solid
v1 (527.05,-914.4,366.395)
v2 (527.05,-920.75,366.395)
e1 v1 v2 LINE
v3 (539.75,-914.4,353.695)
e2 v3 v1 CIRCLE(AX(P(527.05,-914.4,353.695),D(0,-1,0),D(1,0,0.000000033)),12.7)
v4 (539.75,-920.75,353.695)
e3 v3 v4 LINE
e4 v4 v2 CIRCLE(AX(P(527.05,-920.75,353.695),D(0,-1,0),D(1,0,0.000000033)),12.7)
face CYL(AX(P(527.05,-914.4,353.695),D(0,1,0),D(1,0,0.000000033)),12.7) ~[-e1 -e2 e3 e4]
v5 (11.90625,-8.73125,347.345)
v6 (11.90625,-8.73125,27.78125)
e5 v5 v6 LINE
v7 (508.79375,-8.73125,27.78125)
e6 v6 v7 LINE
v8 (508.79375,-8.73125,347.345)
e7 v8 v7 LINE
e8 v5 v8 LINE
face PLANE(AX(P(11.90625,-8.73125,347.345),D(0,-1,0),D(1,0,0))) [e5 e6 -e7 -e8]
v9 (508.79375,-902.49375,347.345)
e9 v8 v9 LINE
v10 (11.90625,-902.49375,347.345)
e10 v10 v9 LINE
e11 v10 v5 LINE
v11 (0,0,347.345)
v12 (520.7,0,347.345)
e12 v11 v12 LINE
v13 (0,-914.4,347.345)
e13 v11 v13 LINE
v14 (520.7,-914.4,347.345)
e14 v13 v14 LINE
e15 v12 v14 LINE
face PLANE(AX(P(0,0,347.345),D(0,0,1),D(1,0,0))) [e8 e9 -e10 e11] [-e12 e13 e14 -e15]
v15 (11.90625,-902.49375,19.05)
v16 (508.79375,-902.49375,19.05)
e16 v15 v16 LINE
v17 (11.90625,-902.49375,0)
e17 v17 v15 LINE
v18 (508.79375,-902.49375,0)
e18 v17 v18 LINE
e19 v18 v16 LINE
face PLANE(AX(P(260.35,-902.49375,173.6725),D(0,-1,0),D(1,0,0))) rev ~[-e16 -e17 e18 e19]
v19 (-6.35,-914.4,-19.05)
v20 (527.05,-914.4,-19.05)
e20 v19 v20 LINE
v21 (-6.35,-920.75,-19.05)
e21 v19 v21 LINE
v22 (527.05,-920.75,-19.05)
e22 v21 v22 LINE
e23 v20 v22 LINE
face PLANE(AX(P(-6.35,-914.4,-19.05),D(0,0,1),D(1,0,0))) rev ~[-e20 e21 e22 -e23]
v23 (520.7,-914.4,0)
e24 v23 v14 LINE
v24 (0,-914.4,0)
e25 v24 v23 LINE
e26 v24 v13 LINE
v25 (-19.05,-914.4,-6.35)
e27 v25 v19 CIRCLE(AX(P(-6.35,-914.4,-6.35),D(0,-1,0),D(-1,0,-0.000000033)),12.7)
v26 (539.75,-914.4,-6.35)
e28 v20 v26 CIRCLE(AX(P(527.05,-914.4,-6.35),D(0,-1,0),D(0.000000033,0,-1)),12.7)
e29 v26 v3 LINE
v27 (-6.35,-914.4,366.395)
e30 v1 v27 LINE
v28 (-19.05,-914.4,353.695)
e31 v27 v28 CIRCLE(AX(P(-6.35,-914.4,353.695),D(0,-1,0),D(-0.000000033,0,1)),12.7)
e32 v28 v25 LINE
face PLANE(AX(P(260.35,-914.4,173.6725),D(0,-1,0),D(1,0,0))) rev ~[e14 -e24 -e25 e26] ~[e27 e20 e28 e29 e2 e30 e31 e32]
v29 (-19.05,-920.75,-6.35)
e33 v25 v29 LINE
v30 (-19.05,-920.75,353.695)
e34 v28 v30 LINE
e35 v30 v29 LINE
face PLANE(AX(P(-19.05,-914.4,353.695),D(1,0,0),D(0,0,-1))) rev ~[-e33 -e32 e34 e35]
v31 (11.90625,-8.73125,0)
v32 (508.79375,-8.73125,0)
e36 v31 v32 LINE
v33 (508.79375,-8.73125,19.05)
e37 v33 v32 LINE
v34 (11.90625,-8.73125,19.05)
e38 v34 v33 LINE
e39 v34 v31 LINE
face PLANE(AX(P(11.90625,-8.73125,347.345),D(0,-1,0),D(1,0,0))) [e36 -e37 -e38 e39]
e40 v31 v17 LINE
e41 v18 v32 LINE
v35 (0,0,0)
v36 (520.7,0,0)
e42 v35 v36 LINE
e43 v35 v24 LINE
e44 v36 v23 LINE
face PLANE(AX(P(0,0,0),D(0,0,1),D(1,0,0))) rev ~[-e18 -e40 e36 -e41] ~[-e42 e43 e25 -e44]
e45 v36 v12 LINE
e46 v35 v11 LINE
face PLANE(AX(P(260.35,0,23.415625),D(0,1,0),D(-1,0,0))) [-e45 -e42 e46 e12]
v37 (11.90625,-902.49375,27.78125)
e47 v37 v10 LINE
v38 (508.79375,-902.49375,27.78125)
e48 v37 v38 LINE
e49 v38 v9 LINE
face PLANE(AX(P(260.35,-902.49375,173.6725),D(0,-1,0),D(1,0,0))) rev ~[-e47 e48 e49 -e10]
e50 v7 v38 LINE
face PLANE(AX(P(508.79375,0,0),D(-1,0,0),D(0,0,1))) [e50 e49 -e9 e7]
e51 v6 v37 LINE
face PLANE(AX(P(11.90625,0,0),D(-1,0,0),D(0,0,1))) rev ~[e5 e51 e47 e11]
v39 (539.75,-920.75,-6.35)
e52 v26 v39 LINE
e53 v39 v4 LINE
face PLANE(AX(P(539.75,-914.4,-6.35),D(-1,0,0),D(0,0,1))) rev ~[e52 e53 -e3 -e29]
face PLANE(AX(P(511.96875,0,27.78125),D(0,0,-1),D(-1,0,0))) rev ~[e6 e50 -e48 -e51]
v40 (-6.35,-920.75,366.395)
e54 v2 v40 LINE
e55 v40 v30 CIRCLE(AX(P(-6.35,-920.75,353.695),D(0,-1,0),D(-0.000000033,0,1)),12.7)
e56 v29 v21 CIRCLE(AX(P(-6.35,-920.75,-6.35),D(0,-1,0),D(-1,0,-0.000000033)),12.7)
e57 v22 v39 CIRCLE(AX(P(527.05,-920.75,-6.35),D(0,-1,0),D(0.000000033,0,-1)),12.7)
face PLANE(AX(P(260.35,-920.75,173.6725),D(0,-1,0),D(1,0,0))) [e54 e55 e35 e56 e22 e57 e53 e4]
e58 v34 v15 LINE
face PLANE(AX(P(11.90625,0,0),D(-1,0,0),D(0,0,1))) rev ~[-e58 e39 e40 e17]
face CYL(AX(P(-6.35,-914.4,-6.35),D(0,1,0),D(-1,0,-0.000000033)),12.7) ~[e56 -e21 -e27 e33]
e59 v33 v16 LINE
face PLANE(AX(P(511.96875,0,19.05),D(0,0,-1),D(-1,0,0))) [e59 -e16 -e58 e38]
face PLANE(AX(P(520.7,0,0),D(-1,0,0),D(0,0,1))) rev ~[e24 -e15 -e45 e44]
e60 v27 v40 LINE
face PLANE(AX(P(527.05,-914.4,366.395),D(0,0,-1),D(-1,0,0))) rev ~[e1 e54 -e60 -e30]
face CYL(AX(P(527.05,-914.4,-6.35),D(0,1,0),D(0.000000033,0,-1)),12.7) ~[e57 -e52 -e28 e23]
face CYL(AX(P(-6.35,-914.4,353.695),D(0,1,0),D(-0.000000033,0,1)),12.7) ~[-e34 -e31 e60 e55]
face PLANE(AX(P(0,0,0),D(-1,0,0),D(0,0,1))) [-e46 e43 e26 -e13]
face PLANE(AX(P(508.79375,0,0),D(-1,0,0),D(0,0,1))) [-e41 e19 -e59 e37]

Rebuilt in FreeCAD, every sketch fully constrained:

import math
import FreeCAD as App
import Part
import Sketcher

V = App.Vector
Q = App.Units.Quantity


def faces_at(feature, points):
    """Names of the faces that lie closest to the given points."""
    faces = feature.Shape.Faces
    near = lambda p: min(range(len(faces)), key=lambda i: faces[i].distToShape(Part.Vertex(*p))[0])
    return sorted({f"Face{near(p) + 1}" for p in points})


def add_polygon(sketch, points):
    """Adds a closed chain of lines whose ends are joined by coincident constraints."""
    first, n = sketch.GeometryCount, len(points)
    for a, b in zip(points, points[1:] + points[:1]):
        sketch.addGeometry(Part.LineSegment(App.Vector(*a, 0), App.Vector(*b, 0)), False)
    for i in range(n):
        sketch.addConstraint(Sketcher.Constraint("Coincident", first + i, 2, first + (i + 1) % n, 1))

doc = App.newDocument("Part")
body = doc.addObject("PartDesign::Body", "Body")

# Sketch on XZ plane
sketch1 = body.newObject("Sketcher::SketchObject", "Sketch")
sketch1.AttachmentSupport = (doc.getObject("XZ_Plane"), [""])
sketch1.MapMode = "FlatFace"
add_polygon(sketch1, [(0, 347), (0, 0), (521, 0), (521, 347)])  # lines 0-3
sketch1.addConstraint([
    Sketcher.Constraint("Vertical", 0),
    Sketcher.Constraint("Horizontal", 1),
    Sketcher.Constraint("Vertical", 2),
    Sketcher.Constraint("Horizontal", 3),
    Sketcher.Constraint("Coincident", 0, 2, -1, 1),
    Sketcher.Constraint("DistanceX", 1, 1, 1, 2, Q("20.5 in")),
    Sketcher.Constraint("DistanceY", 0, 2, 0, 1, Q("13.675 in")),
])
pad1 = body.newObject("PartDesign::Pad", "Pad")
pad1.Profile = sketch1
pad1.Length = Q("36 in")
doc.recompute()

thickness = body.newObject("PartDesign::Thickness", "Thickness")
thickness.Base = (pad1, faces_at(pad1, [(260.35, -457.2, 347.345), (260.35, -457.2, 0)]))
thickness.Value = Q("0.46875 in")
thickness.Reversed = True
thickness.Join = "Arc"

# Sketch on XZ plane
sketch2 = body.newObject("Sketcher::SketchObject", "Sketch001")
sketch2.AttachmentSupport = (doc.getObject("XZ_Plane"), [""])
sketch2.MapMode = "FlatFace"
sketch2.AttachmentOffset = App.Placement(V(0, 0, 36 * 25.4), App.Rotation())
sketch2.addGeometry([
    Part.ArcOfCircle(Part.Circle(V(-6, -6, 0), V(0, 0, 1), 13), math.radians(-180), math.radians(-90)),  # 0
    Part.LineSegment(V(-6, -19, 0), V(527, -19, 0)),  # 1
    Part.ArcOfCircle(Part.Circle(V(527, -6, 0), V(0, 0, 1), 13), math.radians(-90), math.radians(0)),  # 2
    Part.LineSegment(V(540, -6, 0), V(540, 354, 0)),  # 3
    Part.ArcOfCircle(Part.Circle(V(527, 354, 0), V(0, 0, 1), 13), math.radians(0), math.radians(90)),  # 4
    Part.LineSegment(V(527, 366, 0), V(-6, 366, 0)),  # 5
    Part.ArcOfCircle(Part.Circle(V(-6, 354, 0), V(0, 0, 1), 13), math.radians(90), math.radians(180)),  # 6
    Part.LineSegment(V(-19, 354, 0), V(-19, -6, 0)),  # 7
], False)
sketch2.addConstraint([
    Sketcher.Constraint("Tangent", 0, 2, 1, 1),
    Sketcher.Constraint("Tangent", 1, 2, 2, 1),
    Sketcher.Constraint("Tangent", 2, 2, 3, 1),
    Sketcher.Constraint("Tangent", 3, 2, 4, 1),
    Sketcher.Constraint("Tangent", 4, 2, 5, 1),
    Sketcher.Constraint("Tangent", 5, 2, 6, 1),
    Sketcher.Constraint("Tangent", 6, 2, 7, 1),
    Sketcher.Constraint("Tangent", 7, 2, 0, 1),
    Sketcher.Constraint("Horizontal", 1),
    Sketcher.Constraint("Vertical", 3),
    Sketcher.Constraint("Horizontal", 5),
    Sketcher.Constraint("Vertical", 7),
    Sketcher.Constraint("Equal", 0, 2),
    Sketcher.Constraint("Equal", 2, 4),
    Sketcher.Constraint("Equal", 4, 6),
    Sketcher.Constraint("Radius", 0, Q("0.5 in")),
    Sketcher.Constraint("DistanceX", 1, 1, 1, 2, Q("21 in")),
    Sketcher.Constraint("DistanceY", 3, 1, 3, 2, Q("14.175 in")),
    Sketcher.Constraint("DistanceX", 0, 3, -1, 1, Q("0.25 in")),
    Sketcher.Constraint("DistanceY", 0, 3, -1, 1, Q("0.25 in")),
])
pad2 = body.newObject("PartDesign::Pad", "Pad001")
pad2.Profile = sketch2
pad2.Length = Q("0.25 in")

# Sketch on XY plane
sketch3 = body.newObject("Sketcher::SketchObject", "Sketch002")
sketch3.AttachmentSupport = (doc.getObject("XY_Plane"), [""])
sketch3.MapMode = "FlatFace"
sketch3.AttachmentOffset = App.Placement(V(0, 0, 13.675 * 25.4), App.Rotation())
add_polygon(sketch3, [(11.9, -8.7), (11.9, -11.9), (508.8, -11.9), (508.8, -8.7)])  # lines 0-3
sketch3.addConstraint([
    Sketcher.Constraint("Vertical", 0),
    Sketcher.Constraint("Horizontal", 1),
    Sketcher.Constraint("Vertical", 2),
    Sketcher.Constraint("Horizontal", 3),
    Sketcher.Constraint("DistanceX", 1, 1, 1, 2, Q("19.5625 in")),
    Sketcher.Constraint("DistanceY", 0, 2, 0, 1, Q("0.125 in")),
    Sketcher.Constraint("DistanceX", -1, 1, 0, 2, Q("0.46875 in")),
    Sketcher.Constraint("DistanceY", 0, 2, -1, 1, Q("0.46875 in")),
])
pocket1 = body.newObject("PartDesign::Pocket", "Pocket")
pocket1.Profile = sketch3
pocket1.Type = "ThroughAll"

# Sketch on XZ plane
sketch4 = body.newObject("Sketcher::SketchObject", "Sketch003")
sketch4.AttachmentSupport = (doc.getObject("XZ_Plane"), [""])
sketch4.MapMode = "FlatFace"
add_polygon(sketch4, [(512, 28), (512, 19), (9, 19), (9, 28)])  # lines 0-3
sketch4.addConstraint([
    Sketcher.Constraint("Vertical", 0),
    Sketcher.Constraint("Horizontal", 1),
    Sketcher.Constraint("Vertical", 2),
    Sketcher.Constraint("Horizontal", 3),
    Sketcher.Constraint("DistanceX", 1, 2, 1, 1, Q("19.8125 in")),
    Sketcher.Constraint("DistanceY", 0, 2, 0, 1, Q("0.34375 in")),
    Sketcher.Constraint("DistanceY", -1, 1, 0, 2, Q("0.75 in")),
    Sketcher.Constraint("DistanceX", -1, 1, 0, 2, Q("20.15625 in")),
])
pad3 = body.newObject("PartDesign::Pad", "Pad002")
pad3.Profile = sketch4
pad3.Type = "UpToLast"

doc.recompute()
